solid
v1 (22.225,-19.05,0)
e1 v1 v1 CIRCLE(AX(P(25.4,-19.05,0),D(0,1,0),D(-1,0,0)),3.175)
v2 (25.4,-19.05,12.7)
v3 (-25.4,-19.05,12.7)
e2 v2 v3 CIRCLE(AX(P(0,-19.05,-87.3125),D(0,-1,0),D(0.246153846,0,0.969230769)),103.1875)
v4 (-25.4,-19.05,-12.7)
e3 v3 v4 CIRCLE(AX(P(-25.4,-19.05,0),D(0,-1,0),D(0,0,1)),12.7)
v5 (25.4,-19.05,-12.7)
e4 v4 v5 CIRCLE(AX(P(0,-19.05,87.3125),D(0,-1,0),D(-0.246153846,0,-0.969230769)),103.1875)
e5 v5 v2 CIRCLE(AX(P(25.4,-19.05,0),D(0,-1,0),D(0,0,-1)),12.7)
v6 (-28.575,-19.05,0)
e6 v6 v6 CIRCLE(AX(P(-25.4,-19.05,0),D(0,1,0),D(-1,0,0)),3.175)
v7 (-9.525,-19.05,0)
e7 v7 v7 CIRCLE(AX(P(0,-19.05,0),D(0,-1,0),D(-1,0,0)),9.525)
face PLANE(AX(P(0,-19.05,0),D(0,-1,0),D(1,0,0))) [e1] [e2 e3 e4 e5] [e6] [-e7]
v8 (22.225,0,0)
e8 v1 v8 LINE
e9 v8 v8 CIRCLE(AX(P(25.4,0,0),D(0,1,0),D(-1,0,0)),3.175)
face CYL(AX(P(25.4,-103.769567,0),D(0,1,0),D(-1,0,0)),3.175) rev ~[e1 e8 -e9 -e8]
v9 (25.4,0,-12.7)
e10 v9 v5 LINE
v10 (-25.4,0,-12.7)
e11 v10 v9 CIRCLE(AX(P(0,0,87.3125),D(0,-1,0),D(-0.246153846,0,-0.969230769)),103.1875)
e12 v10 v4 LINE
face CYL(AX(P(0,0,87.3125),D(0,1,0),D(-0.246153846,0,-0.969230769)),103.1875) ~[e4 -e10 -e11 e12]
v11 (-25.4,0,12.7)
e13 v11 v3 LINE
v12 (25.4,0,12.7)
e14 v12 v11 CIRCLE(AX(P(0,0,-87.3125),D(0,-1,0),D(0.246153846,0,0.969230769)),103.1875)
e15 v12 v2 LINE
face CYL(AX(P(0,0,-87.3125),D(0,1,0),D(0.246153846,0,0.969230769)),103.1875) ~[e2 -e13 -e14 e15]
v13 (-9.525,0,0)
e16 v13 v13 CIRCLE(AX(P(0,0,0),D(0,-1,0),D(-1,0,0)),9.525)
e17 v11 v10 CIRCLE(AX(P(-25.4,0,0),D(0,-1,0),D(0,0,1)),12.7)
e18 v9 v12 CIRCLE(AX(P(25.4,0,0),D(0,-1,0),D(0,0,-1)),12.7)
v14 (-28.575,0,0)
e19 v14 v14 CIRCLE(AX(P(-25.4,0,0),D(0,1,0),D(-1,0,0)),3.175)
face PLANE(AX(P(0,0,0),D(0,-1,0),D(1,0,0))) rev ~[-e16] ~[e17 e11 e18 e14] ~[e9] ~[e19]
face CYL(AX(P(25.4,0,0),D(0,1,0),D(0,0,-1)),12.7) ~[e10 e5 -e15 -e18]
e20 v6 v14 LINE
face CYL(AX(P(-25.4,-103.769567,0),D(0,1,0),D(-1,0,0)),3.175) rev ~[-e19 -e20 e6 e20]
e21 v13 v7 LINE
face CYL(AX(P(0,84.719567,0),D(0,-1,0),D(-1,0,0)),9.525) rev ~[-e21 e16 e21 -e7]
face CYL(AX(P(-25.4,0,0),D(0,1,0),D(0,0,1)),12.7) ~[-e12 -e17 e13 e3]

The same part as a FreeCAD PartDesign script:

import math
import FreeCAD as App
import Part
import Sketcher
Q = App.Units.Quantity

doc = App.newDocument("Part")
body = doc.addObject("PartDesign::Body", "Body")

sketch1 = body.newObject("Sketcher::SketchObject", "Sketch")
sketch1.AttachmentSupport = (doc.getObject("XZ_Plane"), [""])
sketch1.MapMode = "FlatFace"
sketch1.addGeometry([
    Part.ArcOfCircle(Part.Circle(App.Vector(25.4, 0, 0), App.Vector(0, 0, 1), 12.7), math.radians(-90), math.radians(90)),
    Part.ArcOfCircle(Part.Circle(App.Vector(0, -87.3125, 0), App.Vector(0, 0, 1), 103.1875), math.radians(75.749967), math.radians(104.250033)),
    Part.ArcOfCircle(Part.Circle(App.Vector(-25.4, 0, 0), App.Vector(0, 0, 1), 12.7), math.radians(90), math.radians(270)),
    Part.ArcOfCircle(Part.Circle(App.Vector(0, 87.3125, 0), App.Vector(0, 0, 1), 103.1875), math.radians(-104.250033), math.radians(-75.749967)),
], False)
sketch1.addConstraint([
    Sketcher.Constraint("Coincident", 0, 2, 1, 1),
    Sketcher.Constraint("Coincident", 1, 2, 2, 1),
    Sketcher.Constraint("Coincident", 2, 2, 3, 1),
    Sketcher.Constraint("Coincident", 3, 2, 0, 1),
    Sketcher.Constraint("Equal", 0, 2),
    Sketcher.Constraint("Equal", 1, 3),
    Sketcher.Constraint("Symmetric", 0, 3, 2, 3, -1, 1),
    Sketcher.Constraint("Symmetric", 1, 3, 3, 3, -1, 1),
    Sketcher.Constraint("Symmetric", 0, 2, 1, 2, -2),
    Sketcher.Constraint("Vertical", 2, 3, 1, 2),
    Sketcher.Constraint("Radius", 0, Q("0.5 in")),
    Sketcher.Constraint("DistanceX", -1, 1, 0, 3, Q("1 in")),
    Sketcher.Constraint("Radius", 1, Q("4.0625 in")),
])
pad1 = body.newObject("PartDesign::Pad", "Pad")
pad1.Profile = sketch1
pad1.Length = Q("0.75 in")

sketch2 = body.newObject("Sketcher::SketchObject", "Sketch001")
sketch2.AttachmentSupport = (doc.getObject("XZ_Plane"), [""])
sketch2.MapMode = "FlatFace"
sketch2.addGeometry(Part.Circle(App.Vector(0, 0, 0), App.Vector(0, 0, 1), 9.525), False)
sketch2.addConstraint([
    Sketcher.Constraint("Coincident", 0, 3, -1, 1),
    Sketcher.Constraint("Diameter", 0, Q("0.75 in")),
])
doc.recompute()
hole = body.newObject("PartDesign::Hole", "Hole")
hole.Profile = sketch2
hole.ThreadType = "None"
hole.Diameter = Q("0.75 in")
hole.DepthType = "ThroughAll"
hole.Reversed = True

sketch3 = body.newObject("Sketcher::SketchObject", "Sketch002")
sketch3.AttachmentSupport = (doc.getObject("XZ_Plane"), [""])
sketch3.MapMode = "FlatFace"
sketch3.AttachmentOffset = App.Placement(App.Vector(0, 0, 0.75 * 25.4), App.Rotation())
sketch3.addGeometry([
    Part.Circle(App.Vector(-25.4, 0, 0), App.Vector(0, 0, 1), 3.175),
    Part.Circle(App.Vector(25.4, 0, 0), App.Vector(0, 0, 1), 3.175),
], False)
sketch3.addConstraint([
    Sketcher.Constraint("Equal", 0, 1),
    Sketcher.Constraint("Symmetric", 0, 3, 1, 3, -1, 1),
    Sketcher.Constraint("PointOnObject", 0, 3, -1),
    Sketcher.Constraint("Diameter", 0, Q("0.25 in")),
    Sketcher.Constraint("DistanceX", 0, 3, -1, 1, Q("1 in")),
])
doc.recompute()
hole2 = body.newObject("PartDesign::Hole", "Hole001")
hole2.Profile = sketch3
hole2.ThreadType = "None"
hole2.Diameter = Q("0.25 in")
hole2.DepthType = "ThroughAll"

doc.recompute()
